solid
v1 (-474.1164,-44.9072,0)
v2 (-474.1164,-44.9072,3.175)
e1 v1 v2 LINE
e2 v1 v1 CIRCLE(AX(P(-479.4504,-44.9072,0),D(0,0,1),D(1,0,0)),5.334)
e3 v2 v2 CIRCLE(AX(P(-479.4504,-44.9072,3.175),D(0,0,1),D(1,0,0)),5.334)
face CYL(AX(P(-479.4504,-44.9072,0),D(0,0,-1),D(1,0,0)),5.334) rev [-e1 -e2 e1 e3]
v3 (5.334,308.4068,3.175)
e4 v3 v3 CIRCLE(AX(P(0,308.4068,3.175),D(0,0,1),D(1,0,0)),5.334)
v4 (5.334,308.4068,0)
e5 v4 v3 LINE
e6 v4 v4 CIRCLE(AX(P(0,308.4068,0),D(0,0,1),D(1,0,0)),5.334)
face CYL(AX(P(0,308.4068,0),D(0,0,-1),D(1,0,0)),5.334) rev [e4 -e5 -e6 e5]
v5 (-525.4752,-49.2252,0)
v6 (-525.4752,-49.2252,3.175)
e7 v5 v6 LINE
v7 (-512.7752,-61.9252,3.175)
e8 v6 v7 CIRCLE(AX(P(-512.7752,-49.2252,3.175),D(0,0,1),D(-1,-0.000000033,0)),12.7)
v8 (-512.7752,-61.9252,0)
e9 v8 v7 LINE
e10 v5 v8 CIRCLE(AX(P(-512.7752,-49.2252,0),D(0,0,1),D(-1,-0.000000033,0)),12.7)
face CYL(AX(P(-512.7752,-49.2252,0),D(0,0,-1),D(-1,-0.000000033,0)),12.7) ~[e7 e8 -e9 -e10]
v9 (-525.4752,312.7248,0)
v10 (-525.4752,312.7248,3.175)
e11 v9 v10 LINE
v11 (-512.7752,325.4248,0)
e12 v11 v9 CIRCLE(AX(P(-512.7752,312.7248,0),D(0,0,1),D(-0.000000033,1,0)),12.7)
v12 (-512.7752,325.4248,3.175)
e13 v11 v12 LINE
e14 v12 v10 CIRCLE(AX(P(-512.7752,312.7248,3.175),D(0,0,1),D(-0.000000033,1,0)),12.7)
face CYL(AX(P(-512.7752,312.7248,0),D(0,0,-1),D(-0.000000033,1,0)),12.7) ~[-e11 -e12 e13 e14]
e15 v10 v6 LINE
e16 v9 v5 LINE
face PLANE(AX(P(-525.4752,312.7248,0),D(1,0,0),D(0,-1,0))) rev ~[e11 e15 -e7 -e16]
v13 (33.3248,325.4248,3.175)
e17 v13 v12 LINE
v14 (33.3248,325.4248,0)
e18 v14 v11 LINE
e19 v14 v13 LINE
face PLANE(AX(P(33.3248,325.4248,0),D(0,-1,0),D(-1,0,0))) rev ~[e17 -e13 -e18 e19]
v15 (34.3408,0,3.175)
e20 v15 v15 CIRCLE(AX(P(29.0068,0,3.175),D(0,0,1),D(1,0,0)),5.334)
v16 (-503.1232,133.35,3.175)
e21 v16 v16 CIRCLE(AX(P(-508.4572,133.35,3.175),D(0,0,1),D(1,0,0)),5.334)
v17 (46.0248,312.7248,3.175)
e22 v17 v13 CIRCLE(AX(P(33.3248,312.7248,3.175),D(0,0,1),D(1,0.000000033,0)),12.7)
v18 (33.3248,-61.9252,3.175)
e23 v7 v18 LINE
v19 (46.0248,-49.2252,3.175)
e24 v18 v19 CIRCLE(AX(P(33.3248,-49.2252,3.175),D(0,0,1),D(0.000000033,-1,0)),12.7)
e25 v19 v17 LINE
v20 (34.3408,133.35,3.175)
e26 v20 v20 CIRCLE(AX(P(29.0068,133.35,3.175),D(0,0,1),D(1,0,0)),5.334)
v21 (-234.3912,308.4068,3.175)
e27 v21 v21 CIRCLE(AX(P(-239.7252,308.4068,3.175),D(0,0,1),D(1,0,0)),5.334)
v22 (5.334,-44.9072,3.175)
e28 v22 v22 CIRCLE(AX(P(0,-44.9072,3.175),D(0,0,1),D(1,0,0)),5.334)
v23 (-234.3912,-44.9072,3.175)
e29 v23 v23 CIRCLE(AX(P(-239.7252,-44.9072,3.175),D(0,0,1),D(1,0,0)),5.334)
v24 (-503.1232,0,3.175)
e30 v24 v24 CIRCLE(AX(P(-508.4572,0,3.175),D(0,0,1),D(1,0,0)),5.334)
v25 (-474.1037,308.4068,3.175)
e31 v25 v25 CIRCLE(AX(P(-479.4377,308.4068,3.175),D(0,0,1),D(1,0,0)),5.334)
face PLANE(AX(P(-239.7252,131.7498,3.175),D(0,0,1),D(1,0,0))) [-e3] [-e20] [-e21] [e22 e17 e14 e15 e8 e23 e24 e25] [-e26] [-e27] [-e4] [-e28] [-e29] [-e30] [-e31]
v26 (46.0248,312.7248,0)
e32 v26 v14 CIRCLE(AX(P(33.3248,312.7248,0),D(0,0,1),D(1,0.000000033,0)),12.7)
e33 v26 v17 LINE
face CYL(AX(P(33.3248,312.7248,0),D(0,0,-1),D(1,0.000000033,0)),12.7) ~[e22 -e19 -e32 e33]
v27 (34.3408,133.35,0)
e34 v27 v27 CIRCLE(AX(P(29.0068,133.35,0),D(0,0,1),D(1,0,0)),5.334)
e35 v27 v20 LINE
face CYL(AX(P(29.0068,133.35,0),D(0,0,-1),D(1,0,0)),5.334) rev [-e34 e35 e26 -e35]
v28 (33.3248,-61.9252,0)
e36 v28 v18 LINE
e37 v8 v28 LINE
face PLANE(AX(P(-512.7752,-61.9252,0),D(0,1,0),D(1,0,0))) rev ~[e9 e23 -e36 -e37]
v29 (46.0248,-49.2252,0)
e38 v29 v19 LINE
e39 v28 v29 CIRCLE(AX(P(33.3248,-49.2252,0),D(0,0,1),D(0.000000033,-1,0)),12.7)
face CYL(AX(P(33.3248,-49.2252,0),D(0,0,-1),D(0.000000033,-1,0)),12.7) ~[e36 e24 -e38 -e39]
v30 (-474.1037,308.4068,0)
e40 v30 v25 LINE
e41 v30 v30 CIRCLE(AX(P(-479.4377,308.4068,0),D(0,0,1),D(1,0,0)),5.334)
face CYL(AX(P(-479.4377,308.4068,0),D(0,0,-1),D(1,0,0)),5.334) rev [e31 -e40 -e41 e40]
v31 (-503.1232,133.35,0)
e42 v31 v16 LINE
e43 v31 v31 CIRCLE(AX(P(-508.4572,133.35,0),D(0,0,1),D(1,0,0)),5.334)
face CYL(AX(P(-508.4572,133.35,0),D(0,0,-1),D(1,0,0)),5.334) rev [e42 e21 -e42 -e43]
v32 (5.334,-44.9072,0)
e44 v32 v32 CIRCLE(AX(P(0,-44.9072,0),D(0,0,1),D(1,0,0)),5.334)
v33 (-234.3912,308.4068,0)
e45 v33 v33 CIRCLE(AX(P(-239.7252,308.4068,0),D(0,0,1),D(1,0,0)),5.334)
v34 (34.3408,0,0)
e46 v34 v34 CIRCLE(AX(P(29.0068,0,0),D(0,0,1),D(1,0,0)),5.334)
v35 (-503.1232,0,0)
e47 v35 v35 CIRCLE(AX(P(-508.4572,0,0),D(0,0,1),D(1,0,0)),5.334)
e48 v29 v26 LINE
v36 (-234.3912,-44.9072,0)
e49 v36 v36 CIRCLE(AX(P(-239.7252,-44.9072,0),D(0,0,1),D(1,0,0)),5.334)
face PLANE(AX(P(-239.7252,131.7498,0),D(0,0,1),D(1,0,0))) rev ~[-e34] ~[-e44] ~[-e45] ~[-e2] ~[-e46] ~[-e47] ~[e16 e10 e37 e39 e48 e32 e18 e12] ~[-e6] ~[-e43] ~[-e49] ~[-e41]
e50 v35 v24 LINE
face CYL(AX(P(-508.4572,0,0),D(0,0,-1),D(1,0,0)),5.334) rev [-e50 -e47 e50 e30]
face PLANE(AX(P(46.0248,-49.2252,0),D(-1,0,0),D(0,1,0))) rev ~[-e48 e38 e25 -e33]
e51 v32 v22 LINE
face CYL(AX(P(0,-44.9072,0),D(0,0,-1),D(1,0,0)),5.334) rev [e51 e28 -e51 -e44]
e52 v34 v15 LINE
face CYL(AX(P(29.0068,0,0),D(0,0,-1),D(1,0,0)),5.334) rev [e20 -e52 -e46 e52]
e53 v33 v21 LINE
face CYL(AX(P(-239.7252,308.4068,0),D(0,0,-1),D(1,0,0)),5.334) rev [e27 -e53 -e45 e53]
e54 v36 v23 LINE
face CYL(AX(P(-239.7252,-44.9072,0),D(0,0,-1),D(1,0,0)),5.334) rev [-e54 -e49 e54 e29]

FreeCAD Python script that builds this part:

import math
import FreeCAD as App
import Part
import Sketcher
Q = App.Units.Quantity

doc = App.newDocument("Part")
body = doc.addObject("PartDesign::Body", "Body")

sketch1 = doc.addObject("Sketcher::SketchObject", "Sketch")
body.addObject(sketch1)
sketch1.AttachmentSupport = (doc.XY_Plane, [""])
sketch1.MapMode = "FlatFace"
sketch1.addGeometry([
    Part.LineSegment(App.Vector(33.3248, 325.4248, 0), App.Vector(-512.7752, 325.4248, 0)),
    Part.ArcOfCircle(Part.Circle(App.Vector(-512.7752, 312.7248, 0), App.Vector(0, 0, 1), 12.7), math.radians(90.000002), math.radians(179.999998)),
    Part.LineSegment(App.Vector(-525.4752, 312.7248, 0), App.Vector(-525.4752, -49.2252, 0)),
    Part.ArcOfCircle(Part.Circle(App.Vector(-512.7752, -49.2252, 0), App.Vector(0, 0, 1), 12.7), math.radians(-179.999998), math.radians(-90.000002)),
    Part.LineSegment(App.Vector(-512.7752, -61.9252, 0), App.Vector(33.3248, -61.9252, 0)),
    Part.ArcOfCircle(Part.Circle(App.Vector(33.3248, -49.2252, 0), App.Vector(0, 0, 1), 12.7), math.radians(-89.999998), math.radians(-0.000002)),
    Part.LineSegment(App.Vector(46.0248, -49.2252, 0), App.Vector(46.0248, 312.7248, 0)),
    Part.ArcOfCircle(Part.Circle(App.Vector(33.3248, 312.7248, 0), App.Vector(0, 0, 1), 12.7), math.radians(0.000002), math.radians(89.999998)),
    Part.Circle(App.Vector(-479.4504, -44.9072, 0), App.Vector(0, 0, 1), 5.334),
    Part.Circle(App.Vector(-508.4572, 0, 0), App.Vector(0, 0, 1), 5.334),
    Part.Circle(App.Vector(-239.7252, -44.9072, 0), App.Vector(0, 0, 1), 5.334),
    Part.Circle(App.Vector(0, -44.9072, 0), App.Vector(0, 0, 1), 5.334),
    Part.Circle(App.Vector(29.0068, 0, 0), App.Vector(0, 0, 1), 5.334),
    Part.Circle(App.Vector(-508.4572, 133.35, 0), App.Vector(0, 0, 1), 5.334),
    Part.Circle(App.Vector(-479.4377, 308.4068, 0), App.Vector(0, 0, 1), 5.334),
    Part.Circle(App.Vector(29.0068, 133.35, 0), App.Vector(0, 0, 1), 5.334),
    Part.Circle(App.Vector(-239.7252, 308.4068, 0), App.Vector(0, 0, 1), 5.334),
    Part.Circle(App.Vector(0, 308.4068, 0), App.Vector(0, 0, 1), 5.334),
], False)
sketch1.addConstraint([
    Sketcher.Constraint("Tangent", 0, 2, 1, 1),
    Sketcher.Constraint("Tangent", 1, 2, 2, 1),
    Sketcher.Constraint("Tangent", 2, 2, 3, 1),
    Sketcher.Constraint("Tangent", 3, 2, 4, 1),
    Sketcher.Constraint("Tangent", 4, 2, 5, 1),
    Sketcher.Constraint("Tangent", 5, 2, 6, 1),
    Sketcher.Constraint("Tangent", 6, 2, 7, 1),
    Sketcher.Constraint("Tangent", 7, 2, 0, 1),
    Sketcher.Constraint("Horizontal", 0),
    Sketcher.Constraint("Vertical", 2),
    Sketcher.Constraint("Horizontal", 4),
    Sketcher.Constraint("Vertical", 6),
    Sketcher.Constraint("Equal", 1, 3),
    Sketcher.Constraint("Equal", 3, 5),
    Sketcher.Constraint("Equal", 5, 7),
    Sketcher.Constraint("Equal", 8, 9),
    Sketcher.Constraint("Equal", 9, 10),
    Sketcher.Constraint("Equal", 10, 11),
    Sketcher.Constraint("Equal", 11, 12),
    Sketcher.Constraint("Equal", 12, 13),
    Sketcher.Constraint("Equal", 13, 14),
    Sketcher.Constraint("Equal", 14, 15),
    Sketcher.Constraint("Equal", 15, 16),
    Sketcher.Constraint("Equal", 16, 17),
    Sketcher.Constraint("PointOnObject", 9, 3, -1),
    Sketcher.Constraint("PointOnObject", 11, 3, -2),
    Sketcher.Constraint("PointOnObject", 12, 3, -1),
    Sketcher.Constraint("PointOnObject", 17, 3, -2),
    Sketcher.Constraint("Horizontal", 8, 3, 10, 3),
    Sketcher.Constraint("Horizontal", 10, 3, 11, 3),
    Sketcher.Constraint("Horizontal", 13, 3, 15, 3),
    Sketcher.Constraint("Horizontal", 14, 3, 16, 3),
    Sketcher.Constraint("Horizontal", 16, 3, 17, 3),
    Sketcher.Constraint("Vertical", 9, 3, 13, 3),
    Sketcher.Constraint("Vertical", 12, 3, 15, 3),
    Sketcher.Constraint("Vertical", 10, 3, 16, 3),
    Sketcher.Constraint("Radius", 1, Q("0.5 in")),
    Sketcher.Constraint("Diameter", 8, Q("0.42 in")),
    Sketcher.Constraint("DistanceX", 0, 2, 0, 1, Q("21.5 in")),
    Sketcher.Constraint("DistanceY", 2, 2, 2, 1, Q("14.25 in")),
    Sketcher.Constraint("DistanceY", -1, 1, 13, 3, Q("5.25 in")),
    Sketcher.Constraint("DistanceY", 3, 3, 8, 3, Q("0.17 in")),
    Sketcher.Constraint("DistanceX", 3, 3, 9, 3, Q("0.17 in")),
    Sketcher.Constraint("DistanceX", 9, 3, 10, 3, Q("10.58 in")),
    Sketcher.Constraint("DistanceX", 12, 3, 5, 3, Q("0.17 in")),
    Sketcher.Constraint("DistanceY", 14, 3, 1, 3, Q("0.17 in")),
    Sketcher.Constraint("DistanceX", 1, 3, -1, 1, Q("20.188 in")),
    Sketcher.Constraint("DistanceY", -1, 1, 1, 3, Q("12.312 in")),
    Sketcher.Constraint("DistanceX", 8, 3, -1, 1, Q("18.876 in")),
    Sketcher.Constraint("DistanceX", 1, 3, 14, 3, Q("1.3125 in")),
])
pad1 = doc.addObject("PartDesign::Pad", "Pad")
body.addObject(pad1)
pad1.Profile = sketch1
pad1.Length = Q("0.125 in")

doc.recompute()
